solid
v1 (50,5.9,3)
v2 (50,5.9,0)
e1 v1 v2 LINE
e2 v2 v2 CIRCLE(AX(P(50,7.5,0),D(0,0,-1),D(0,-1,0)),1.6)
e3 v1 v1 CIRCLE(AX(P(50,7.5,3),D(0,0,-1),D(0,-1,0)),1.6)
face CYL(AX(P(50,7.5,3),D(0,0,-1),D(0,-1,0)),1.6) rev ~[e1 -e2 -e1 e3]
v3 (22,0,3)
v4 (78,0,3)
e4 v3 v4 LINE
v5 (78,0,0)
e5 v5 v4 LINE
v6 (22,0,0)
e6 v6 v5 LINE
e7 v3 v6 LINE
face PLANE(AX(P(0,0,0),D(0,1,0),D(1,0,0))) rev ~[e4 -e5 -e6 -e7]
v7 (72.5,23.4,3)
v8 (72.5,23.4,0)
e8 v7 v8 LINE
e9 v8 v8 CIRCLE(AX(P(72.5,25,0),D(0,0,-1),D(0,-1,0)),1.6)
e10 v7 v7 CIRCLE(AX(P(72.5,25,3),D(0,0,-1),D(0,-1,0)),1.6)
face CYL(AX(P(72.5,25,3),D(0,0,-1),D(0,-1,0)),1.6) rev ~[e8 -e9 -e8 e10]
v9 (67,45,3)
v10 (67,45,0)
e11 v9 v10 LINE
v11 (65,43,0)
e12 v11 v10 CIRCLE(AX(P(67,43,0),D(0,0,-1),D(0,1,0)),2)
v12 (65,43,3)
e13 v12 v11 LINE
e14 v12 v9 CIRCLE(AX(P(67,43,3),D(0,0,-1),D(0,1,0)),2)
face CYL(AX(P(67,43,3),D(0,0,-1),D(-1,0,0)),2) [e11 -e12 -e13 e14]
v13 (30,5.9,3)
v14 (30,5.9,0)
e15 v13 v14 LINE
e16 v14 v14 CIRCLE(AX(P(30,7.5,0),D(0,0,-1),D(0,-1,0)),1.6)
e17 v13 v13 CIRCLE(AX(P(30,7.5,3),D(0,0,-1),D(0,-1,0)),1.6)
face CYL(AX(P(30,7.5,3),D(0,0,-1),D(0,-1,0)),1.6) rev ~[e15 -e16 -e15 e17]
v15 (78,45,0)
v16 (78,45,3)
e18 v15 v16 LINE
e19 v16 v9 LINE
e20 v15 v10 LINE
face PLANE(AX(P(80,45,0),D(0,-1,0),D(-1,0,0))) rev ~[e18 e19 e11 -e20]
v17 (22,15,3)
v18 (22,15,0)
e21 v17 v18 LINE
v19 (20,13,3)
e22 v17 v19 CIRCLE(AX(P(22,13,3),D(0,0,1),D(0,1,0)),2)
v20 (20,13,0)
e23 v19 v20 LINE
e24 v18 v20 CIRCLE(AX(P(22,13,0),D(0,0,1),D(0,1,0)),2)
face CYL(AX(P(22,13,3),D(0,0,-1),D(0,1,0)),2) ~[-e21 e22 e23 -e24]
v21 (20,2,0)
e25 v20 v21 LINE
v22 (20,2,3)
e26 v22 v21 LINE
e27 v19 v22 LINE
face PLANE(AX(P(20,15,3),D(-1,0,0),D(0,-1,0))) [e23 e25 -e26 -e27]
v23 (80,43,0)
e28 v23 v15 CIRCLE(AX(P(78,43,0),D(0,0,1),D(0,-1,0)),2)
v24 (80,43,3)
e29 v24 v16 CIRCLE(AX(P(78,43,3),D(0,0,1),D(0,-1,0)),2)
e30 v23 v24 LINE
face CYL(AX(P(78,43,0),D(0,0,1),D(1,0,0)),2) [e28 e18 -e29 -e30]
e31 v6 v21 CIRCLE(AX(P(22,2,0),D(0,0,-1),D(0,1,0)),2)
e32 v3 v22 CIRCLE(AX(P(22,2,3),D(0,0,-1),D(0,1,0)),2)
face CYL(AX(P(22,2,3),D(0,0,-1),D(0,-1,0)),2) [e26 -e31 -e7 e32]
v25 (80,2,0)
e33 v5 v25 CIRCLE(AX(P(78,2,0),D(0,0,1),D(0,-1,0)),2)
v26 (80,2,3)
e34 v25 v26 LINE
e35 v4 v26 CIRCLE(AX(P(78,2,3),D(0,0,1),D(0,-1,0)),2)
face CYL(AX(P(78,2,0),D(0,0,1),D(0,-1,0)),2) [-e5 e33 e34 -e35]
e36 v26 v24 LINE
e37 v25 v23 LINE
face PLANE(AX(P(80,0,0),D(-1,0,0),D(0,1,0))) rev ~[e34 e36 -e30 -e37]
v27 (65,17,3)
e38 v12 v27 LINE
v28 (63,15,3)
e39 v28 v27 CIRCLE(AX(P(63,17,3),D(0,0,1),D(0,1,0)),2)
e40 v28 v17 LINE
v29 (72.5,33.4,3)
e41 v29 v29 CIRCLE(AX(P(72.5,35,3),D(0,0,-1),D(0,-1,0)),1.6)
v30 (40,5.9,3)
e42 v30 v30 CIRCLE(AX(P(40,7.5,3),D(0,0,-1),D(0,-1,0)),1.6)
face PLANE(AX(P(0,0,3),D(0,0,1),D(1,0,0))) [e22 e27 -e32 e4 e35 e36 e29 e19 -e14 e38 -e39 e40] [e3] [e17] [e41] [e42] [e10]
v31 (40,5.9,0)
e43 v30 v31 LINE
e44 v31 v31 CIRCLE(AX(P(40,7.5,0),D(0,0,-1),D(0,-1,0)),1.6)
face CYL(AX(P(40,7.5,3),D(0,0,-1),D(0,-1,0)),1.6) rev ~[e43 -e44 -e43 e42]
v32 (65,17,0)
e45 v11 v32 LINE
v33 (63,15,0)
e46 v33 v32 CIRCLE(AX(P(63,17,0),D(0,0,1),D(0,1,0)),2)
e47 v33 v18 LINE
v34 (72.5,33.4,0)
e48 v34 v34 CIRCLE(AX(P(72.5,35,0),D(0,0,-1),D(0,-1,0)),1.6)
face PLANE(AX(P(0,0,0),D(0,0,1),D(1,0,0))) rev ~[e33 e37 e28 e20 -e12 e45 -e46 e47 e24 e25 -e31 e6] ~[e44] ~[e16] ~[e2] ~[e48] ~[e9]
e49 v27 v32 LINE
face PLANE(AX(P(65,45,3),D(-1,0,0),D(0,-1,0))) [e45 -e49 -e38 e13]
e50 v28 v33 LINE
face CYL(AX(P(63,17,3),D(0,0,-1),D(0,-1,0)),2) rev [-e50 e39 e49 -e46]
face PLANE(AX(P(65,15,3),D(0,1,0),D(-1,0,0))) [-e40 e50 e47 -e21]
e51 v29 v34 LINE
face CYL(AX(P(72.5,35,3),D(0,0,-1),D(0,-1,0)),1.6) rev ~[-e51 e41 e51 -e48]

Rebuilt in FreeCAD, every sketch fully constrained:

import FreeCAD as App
import Part
import Sketcher
Q = App.Units.Quantity


def edges_at(feature, points):
    """Names of the edges that pass closest to the given points."""
    edges = feature.Shape.Edges
    near = lambda p: min(range(len(edges)), key=lambda i: edges[i].distToShape(Part.Vertex(*p))[0])
    return sorted({f"Edge{near(p) + 1}" for p in points})

doc = App.newDocument("Part")
body = doc.addObject("PartDesign::Body", "Body")

sketch1 = body.newObject("Sketcher::SketchObject", "Sketch")
sketch1.AttachmentSupport = (doc.getObject("XY_Plane"), [""])
sketch1.MapMode = "FlatFace"
sketch1.addGeometry([
    Part.LineSegment(App.Vector(0, 45, 0), App.Vector(0, 0, 0)),
    Part.LineSegment(App.Vector(0, 0, 0), App.Vector(80, 0, 0)),
    Part.LineSegment(App.Vector(80, 0, 0), App.Vector(80, 45, 0)),
    Part.LineSegment(App.Vector(80, 45, 0), App.Vector(0, 45, 0)),
], False)
sketch1.addConstraint([
    Sketcher.Constraint("Coincident", 0, 2, 1, 1),
    Sketcher.Constraint("Coincident", 1, 2, 2, 1),
    Sketcher.Constraint("Coincident", 2, 2, 3, 1),
    Sketcher.Constraint("Coincident", 3, 2, 0, 1),
    Sketcher.Constraint("Vertical", 0),
    Sketcher.Constraint("Horizontal", 1),
    Sketcher.Constraint("Vertical", 2),
    Sketcher.Constraint("Horizontal", 3),
    Sketcher.Constraint("Coincident", 0, 2, -1, 1),
    Sketcher.Constraint("DistanceX", 1, 1, 1, 2, Q("80 mm")),
    Sketcher.Constraint("DistanceY", 0, 2, 0, 1, Q("45 mm")),
])
pad1 = body.newObject("PartDesign::Pad", "Pad")
pad1.Profile = sketch1
pad1.Length = 3

sketch2 = body.newObject("Sketcher::SketchObject", "Sketch001")
sketch2.AttachmentSupport = (doc.getObject("XY_Plane"), [""])
sketch2.MapMode = "FlatFace"
sketch2.AttachmentOffset = App.Placement(App.Vector(0, 0, 3), App.Rotation())
sketch2.addGeometry([
    Part.Circle(App.Vector(7.5, 35, 0), App.Vector(0, 0, 1), 1.6),
    Part.Circle(App.Vector(7.5, 25, 0), App.Vector(0, 0, 1), 1.6),
    Part.Circle(App.Vector(30, 7.5, 0), App.Vector(0, 0, 1), 1.6),
    Part.Circle(App.Vector(72.5, 35, 0), App.Vector(0, 0, 1), 1.6),
    Part.Circle(App.Vector(72.5, 25, 0), App.Vector(0, 0, 1), 1.6),
    Part.Circle(App.Vector(50, 7.5, 0), App.Vector(0, 0, 1), 1.6),
    Part.Circle(App.Vector(40, 7.5, 0), App.Vector(0, 0, 1), 1.6),
], False)
sketch2.addConstraint([
    Sketcher.Constraint("Equal", 0, 1),
    Sketcher.Constraint("Equal", 1, 2),
    Sketcher.Constraint("Equal", 2, 3),
    Sketcher.Constraint("Equal", 3, 4),
    Sketcher.Constraint("Equal", 4, 5),
    Sketcher.Constraint("Equal", 5, 6),
    Sketcher.Constraint("Horizontal", 0, 3, 3, 3),
    Sketcher.Constraint("Horizontal", 1, 3, 4, 3),
    Sketcher.Constraint("Horizontal", 2, 3, 5, 3),
    Sketcher.Constraint("Horizontal", 5, 3, 6, 3),
    Sketcher.Constraint("Vertical", 0, 3, 1, 3),
    Sketcher.Constraint("Vertical", 3, 3, 4, 3),
    Sketcher.Constraint("Diameter", 0, Q("3.2 mm")),
    Sketcher.Constraint("DistanceY", -1, 1, 0, 3, Q("35 mm")),
    Sketcher.Constraint("DistanceY", -1, 1, 1, 3, Q("25 mm")),
    Sketcher.Constraint("DistanceX", -1, 1, 2, 3, Q("30 mm")),
    Sketcher.Constraint("DistanceX", -1, 1, 5, 3, Q("50 mm")),
    Sketcher.Constraint("DistanceX", -1, 1, 6, 3, Q("40 mm")),
    Sketcher.Constraint("DistanceX", 0, 3, 3, 3, Q("65 mm")),
    Sketcher.Constraint("DistanceX", -1, 1, 0, 3, Q("7.5 mm")),
    Sketcher.Constraint("DistanceY", -1, 1, 2, 3, Q("7.5 mm")),
])
doc.recompute()
hole = body.newObject("PartDesign::Hole", "Hole")
hole.Profile = sketch2
hole.ThreadType = "None"
hole.Diameter = 3.2
hole.DepthType = "ThroughAll"

sketch3 = body.newObject("Sketcher::SketchObject", "Sketch002")
sketch3.AttachmentSupport = (doc.getObject("XY_Plane"), [""])
sketch3.MapMode = "FlatFace"
sketch3.AttachmentOffset = App.Placement(App.Vector(0, 0, 3), App.Rotation())
sketch3.addGeometry([
    Part.LineSegment(App.Vector(65, 15, 0), App.Vector(65, 45, 0)),
    Part.LineSegment(App.Vector(65, 45, 0), App.Vector(15, 45, 0)),
    Part.LineSegment(App.Vector(15, 45, 0), App.Vector(15, 15, 0)),
    Part.LineSegment(App.Vector(15, 15, 0), App.Vector(65, 15, 0)),
], False)
sketch3.addConstraint([
    Sketcher.Constraint("Coincident", 0, 2, 1, 1),
    Sketcher.Constraint("Coincident", 1, 2, 2, 1),
    Sketcher.Constraint("Coincident", 2, 2, 3, 1),
    Sketcher.Constraint("Coincident", 3, 2, 0, 1),
    Sketcher.Constraint("Vertical", 0),
    Sketcher.Constraint("Horizontal", 1),
    Sketcher.Constraint("Vertical", 2),
    Sketcher.Constraint("Horizontal", 3),
    Sketcher.Constraint("DistanceX", 1, 2, 1, 1, Q("50 mm")),
    Sketcher.Constraint("DistanceY", 0, 1, 0, 2, Q("30 mm")),
    Sketcher.Constraint("DistanceX", -1, 1, 1, 2, Q("15 mm")),
    Sketcher.Constraint("DistanceY", -1, 1, 2, 2, Q("15 mm")),
])
pocket1 = body.newObject("PartDesign::Pocket", "Pocket")
pocket1.Profile = sketch3
pocket1.Length = 3
doc.recompute()

fillet = body.newObject("PartDesign::Fillet", "Fillet")
fillet.Base = (pocket1, edges_at(pocket1, [
    (15, 45, 1.5),
    (65, 15, 1.5),
    (65, 45, 1.5),
    (80, 45, 1.5),
    (0, 45, 1.5),
    (0, 0, 1.5),
    (80, 0, 1.5),
    (15, 15, 1.5),
]))
fillet.Radius = 2

sketch4 = body.newObject("Sketcher::SketchObject", "Sketch003")
sketch4.AttachmentSupport = (doc.getObject("XY_Plane"), [""])
sketch4.MapMode = "FlatFace"
sketch4.AttachmentOffset = App.Placement(App.Vector(0, 0, 3), App.Rotation())
sketch4.addGeometry([
    Part.LineSegment(App.Vector(20, 0, 0), App.Vector(20, 15, 0)),
    Part.LineSegment(App.Vector(20, 15, 0), App.Vector(14, 55, 0)),
    Part.LineSegment(App.Vector(14, 55, 0), App.Vector(-5, 44, 0)),
    Part.LineSegment(App.Vector(-5, 44, 0), App.Vector(-5, 0, 0)),
    Part.LineSegment(App.Vector(-5, 0, 0), App.Vector(20, 0, 0)),
], False)
sketch4.addConstraint([
    Sketcher.Constraint("Coincident", 0, 2, 1, 1),
    Sketcher.Constraint("Coincident", 1, 2, 2, 1),
    Sketcher.Constraint("Coincident", 2, 2, 3, 1),
    Sketcher.Constraint("Coincident", 3, 2, 4, 1),
    Sketcher.Constraint("Coincident", 4, 2, 0, 1),
    Sketcher.Constraint("Vertical", 0),
    Sketcher.Constraint("Vertical", 3),
    Sketcher.Constraint("Horizontal", 4),
    Sketcher.Constraint("PointOnObject", 3, 2, -1),
    Sketcher.Constraint("DistanceY", 0, 1, 0, 2, Q("15 mm")),
    Sketcher.Constraint("DistanceX", -1, 1, 0, 2, Q("20 mm")),
    Sketcher.Constraint("DistanceX", 4, 1, 4, 2, Q("24.9194 mm")),
    Sketcher.Constraint("DistanceY", 3, 2, 3, 1, Q("44.4595 mm")),
    Sketcher.Constraint("Distance", 1, Q("40.7284 mm")),
    Sketcher.Constraint("Distance", 2, Q("22.1578 mm")),
])
pocket2 = body.newObject("PartDesign::Pocket", "Pocket001")
pocket2.Profile = sketch4
pocket2.Length = 10
doc.recompute()

fillet2 = body.newObject("PartDesign::Fillet", "Fillet001")
fillet2.Base = (pocket2, edges_at(pocket2, [(20, 15, 1.5), (20, 0, 1.5)]))
fillet2.Radius = 2

doc.recompute()
